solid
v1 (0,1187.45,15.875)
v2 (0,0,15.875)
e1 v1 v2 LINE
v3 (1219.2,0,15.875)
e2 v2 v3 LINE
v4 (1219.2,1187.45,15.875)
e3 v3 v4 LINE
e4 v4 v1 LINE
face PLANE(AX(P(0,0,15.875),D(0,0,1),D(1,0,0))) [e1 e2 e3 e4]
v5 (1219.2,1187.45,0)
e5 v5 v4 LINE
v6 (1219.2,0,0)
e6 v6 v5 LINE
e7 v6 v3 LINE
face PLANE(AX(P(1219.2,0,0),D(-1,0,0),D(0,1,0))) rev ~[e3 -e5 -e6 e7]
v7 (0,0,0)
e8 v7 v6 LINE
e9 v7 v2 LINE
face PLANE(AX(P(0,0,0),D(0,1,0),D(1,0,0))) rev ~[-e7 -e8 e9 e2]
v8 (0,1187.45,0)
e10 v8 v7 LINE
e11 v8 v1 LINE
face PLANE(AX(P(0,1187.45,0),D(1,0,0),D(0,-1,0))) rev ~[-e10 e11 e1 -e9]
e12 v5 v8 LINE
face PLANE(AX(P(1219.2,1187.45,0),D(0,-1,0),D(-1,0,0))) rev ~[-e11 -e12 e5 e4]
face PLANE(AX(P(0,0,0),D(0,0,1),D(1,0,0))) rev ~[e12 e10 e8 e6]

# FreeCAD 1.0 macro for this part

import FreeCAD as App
import Part
import Sketcher
Q = App.Units.Quantity

doc = App.newDocument("Part")
params = doc.addObject("Spreadsheet::Sheet", "Params")
for row, (alias, value) in enumerate([
    ("sketch1_width", "48 in"),
    ("sketch1_height", "46.75 in"),
    ("pad1_length", "0.625 in"),
], start=1):
    params.set(f"A{row}", alias)
    params.set(f"B{row}", "=" + value)
    params.setAlias(f"B{row}", alias)

body = doc.addObject("PartDesign::Body", "Body")

sketch1 = body.newObject("Sketcher::SketchObject", "Sketch")
sketch1.AttachmentSupport = (doc.getObject("XY_Plane"), [""])
sketch1.MapMode = "FlatFace"
sketch1.addGeometry(Part.LineSegment(App.Vector(0, 1187, 0), App.Vector(0, 0, 0)), False)
sketch1.addGeometry(Part.LineSegment(App.Vector(0, 0, 0), App.Vector(1219, 0, 0)), False)
sketch1.addGeometry(Part.LineSegment(App.Vector(1219, 0, 0), App.Vector(1219, 1187, 0)), False)
sketch1.addGeometry(Part.LineSegment(App.Vector(1219, 1187, 0), App.Vector(0, 1187, 0)), False)
sketch1.addConstraint(Sketcher.Constraint("Coincident", 0, 2, 1, 1))
sketch1.addConstraint(Sketcher.Constraint("Coincident", 1, 2, 2, 1))
sketch1.addConstraint(Sketcher.Constraint("Coincident", 2, 2, 3, 1))
sketch1.addConstraint(Sketcher.Constraint("Coincident", 3, 2, 0, 1))
sketch1.addConstraint(Sketcher.Constraint("Vertical", 0))
sketch1.addConstraint(Sketcher.Constraint("Horizontal", 1))
sketch1.addConstraint(Sketcher.Constraint("Vertical", 2))
sketch1.addConstraint(Sketcher.Constraint("Horizontal", 3))
sketch1.addConstraint(Sketcher.Constraint("Coincident", 0, 2, -1, 1))
sketch1.addConstraint(Sketcher.Constraint("DistanceX", 1, 1, 1, 2, Q("48 in")))
sketch1.addConstraint(Sketcher.Constraint("DistanceY", 0, 2, 0, 1, Q("46.75 in")))
sketch1.setExpression("Constraints[9]", "Params.sketch1_width")
sketch1.setExpression("Constraints[10]", "Params.sketch1_height")
pad1 = body.newObject("PartDesign::Pad", "Pad")
pad1.Profile = sketch1
pad1.setExpression("Length", "Params.pad1_length")

doc.recompute()
